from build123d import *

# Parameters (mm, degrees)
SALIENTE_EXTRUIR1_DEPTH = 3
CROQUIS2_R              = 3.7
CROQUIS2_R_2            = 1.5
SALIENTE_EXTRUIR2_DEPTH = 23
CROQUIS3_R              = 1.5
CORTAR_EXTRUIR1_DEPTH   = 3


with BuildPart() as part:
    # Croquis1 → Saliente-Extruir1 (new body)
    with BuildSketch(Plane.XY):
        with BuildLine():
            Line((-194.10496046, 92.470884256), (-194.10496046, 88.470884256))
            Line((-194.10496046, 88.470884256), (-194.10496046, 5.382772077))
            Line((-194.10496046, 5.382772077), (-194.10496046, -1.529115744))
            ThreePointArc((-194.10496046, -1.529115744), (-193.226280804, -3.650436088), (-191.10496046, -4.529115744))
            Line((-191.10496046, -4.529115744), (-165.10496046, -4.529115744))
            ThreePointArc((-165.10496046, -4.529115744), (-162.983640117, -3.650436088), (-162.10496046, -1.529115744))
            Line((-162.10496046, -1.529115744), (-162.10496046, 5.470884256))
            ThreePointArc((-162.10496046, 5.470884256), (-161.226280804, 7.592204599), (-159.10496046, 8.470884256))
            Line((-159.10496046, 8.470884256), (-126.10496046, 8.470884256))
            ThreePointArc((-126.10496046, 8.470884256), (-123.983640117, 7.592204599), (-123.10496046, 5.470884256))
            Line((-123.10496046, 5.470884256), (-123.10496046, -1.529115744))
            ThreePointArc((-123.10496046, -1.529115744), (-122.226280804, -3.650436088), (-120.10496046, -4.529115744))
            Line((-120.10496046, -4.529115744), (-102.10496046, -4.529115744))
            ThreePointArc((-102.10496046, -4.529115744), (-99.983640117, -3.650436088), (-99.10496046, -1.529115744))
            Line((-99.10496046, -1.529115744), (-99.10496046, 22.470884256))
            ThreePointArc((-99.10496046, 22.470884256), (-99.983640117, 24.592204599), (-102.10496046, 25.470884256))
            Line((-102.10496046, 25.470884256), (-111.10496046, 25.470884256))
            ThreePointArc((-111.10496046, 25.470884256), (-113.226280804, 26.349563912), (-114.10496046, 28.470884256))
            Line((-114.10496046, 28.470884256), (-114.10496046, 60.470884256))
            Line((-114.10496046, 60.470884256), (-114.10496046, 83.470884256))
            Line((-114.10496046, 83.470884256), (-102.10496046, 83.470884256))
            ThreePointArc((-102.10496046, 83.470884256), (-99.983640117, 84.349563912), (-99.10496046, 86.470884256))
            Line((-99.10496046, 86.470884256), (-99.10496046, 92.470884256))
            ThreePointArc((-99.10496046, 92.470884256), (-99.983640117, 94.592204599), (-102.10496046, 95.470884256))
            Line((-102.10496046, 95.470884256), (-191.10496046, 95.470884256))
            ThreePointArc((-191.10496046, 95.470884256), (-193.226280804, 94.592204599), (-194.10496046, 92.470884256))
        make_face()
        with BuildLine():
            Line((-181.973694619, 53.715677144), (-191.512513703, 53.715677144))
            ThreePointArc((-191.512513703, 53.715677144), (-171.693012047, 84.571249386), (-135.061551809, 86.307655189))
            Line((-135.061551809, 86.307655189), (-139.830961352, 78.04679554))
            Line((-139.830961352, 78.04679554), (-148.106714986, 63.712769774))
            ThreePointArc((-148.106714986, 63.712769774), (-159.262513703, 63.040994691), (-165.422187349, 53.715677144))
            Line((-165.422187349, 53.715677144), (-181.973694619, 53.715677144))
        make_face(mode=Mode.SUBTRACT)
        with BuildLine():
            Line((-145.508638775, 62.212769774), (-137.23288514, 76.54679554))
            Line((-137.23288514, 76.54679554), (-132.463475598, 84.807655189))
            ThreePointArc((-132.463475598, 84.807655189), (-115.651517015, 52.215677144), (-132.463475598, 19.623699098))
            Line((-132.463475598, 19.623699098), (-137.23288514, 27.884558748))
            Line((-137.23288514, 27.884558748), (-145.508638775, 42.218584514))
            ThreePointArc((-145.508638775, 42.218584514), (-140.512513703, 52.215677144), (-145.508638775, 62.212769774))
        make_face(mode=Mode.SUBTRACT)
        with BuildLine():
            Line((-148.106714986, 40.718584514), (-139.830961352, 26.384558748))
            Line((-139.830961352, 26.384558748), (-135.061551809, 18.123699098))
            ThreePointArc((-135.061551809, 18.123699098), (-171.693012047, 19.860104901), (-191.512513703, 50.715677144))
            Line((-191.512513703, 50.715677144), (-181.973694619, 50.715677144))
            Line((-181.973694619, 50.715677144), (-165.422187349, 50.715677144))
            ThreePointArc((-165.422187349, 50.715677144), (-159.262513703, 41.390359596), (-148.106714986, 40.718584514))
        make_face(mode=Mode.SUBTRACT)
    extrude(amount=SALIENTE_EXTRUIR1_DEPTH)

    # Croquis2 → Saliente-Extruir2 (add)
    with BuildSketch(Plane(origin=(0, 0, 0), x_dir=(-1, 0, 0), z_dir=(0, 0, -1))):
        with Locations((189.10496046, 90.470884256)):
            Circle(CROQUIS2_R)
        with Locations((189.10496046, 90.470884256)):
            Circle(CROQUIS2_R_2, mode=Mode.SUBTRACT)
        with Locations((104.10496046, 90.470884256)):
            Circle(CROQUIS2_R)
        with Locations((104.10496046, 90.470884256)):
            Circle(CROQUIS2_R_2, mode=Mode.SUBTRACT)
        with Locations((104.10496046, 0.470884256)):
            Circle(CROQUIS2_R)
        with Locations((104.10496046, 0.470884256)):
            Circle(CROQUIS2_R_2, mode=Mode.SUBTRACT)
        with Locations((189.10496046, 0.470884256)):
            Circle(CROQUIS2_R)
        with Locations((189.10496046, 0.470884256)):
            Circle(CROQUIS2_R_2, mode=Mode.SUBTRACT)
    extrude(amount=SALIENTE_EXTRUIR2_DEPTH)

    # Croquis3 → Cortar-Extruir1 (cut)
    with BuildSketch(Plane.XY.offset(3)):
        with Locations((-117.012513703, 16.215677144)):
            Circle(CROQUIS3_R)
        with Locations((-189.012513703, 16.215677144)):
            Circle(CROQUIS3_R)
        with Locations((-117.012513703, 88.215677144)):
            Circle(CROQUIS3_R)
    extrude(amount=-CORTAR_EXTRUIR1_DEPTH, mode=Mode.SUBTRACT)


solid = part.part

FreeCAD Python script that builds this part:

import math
import FreeCAD as App
import Part
import Sketcher

V = App.Vector
Q = App.Units.Quantity

doc = App.newDocument("Part")
body = doc.addObject("PartDesign::Body", "Body")

sketch1 = doc.addObject("Sketcher::SketchObject", "Sketch")
body.addObject(sketch1)
sketch1.AttachmentSupport = (doc.XY_Plane, [""])
sketch1.MapMode = "FlatFace"
sketch1.addGeometry(Part.LineSegment(V(-194.1, 92.5, 0), V(-194.1, -1.5, 0)), False)
sketch1.addGeometry(Part.ArcOfCircle(Part.Circle(V(-191.1, -1.5, 0), V(0, 0, 1), 3), math.radians(180), math.radians(270)), False)
sketch1.addGeometry(Part.LineSegment(V(-191.1, -4.5, 0), V(-165.1, -4.5, 0)), False)
sketch1.addGeometry(Part.ArcOfCircle(Part.Circle(V(-165.1, -1.5, 0), V(0, 0, 1), 3), math.radians(-90), math.radians(0)), False)
sketch1.addGeometry(Part.LineSegment(V(-162.1, -1.5, 0), V(-162.1, 5.5, 0)), False)
sketch1.addGeometry(Part.ArcOfCircle(Part.Circle(V(-159.1, 5.5, 0), V(0, 0, 1), 3), math.radians(90), math.radians(180)), False)
sketch1.addGeometry(Part.LineSegment(V(-159.1, 8.5, 0), V(-126.1, 8.5, 0)), False)
sketch1.addGeometry(Part.ArcOfCircle(Part.Circle(V(-126.1, 5.5, 0), V(0, 0, 1), 3), math.radians(0), math.radians(90)), False)
sketch1.addGeometry(Part.LineSegment(V(-123.1, 5.5, 0), V(-123.1, -1.5, 0)), False)
sketch1.addGeometry(Part.ArcOfCircle(Part.Circle(V(-120.1, -1.5, 0), V(0, 0, 1), 3), math.radians(180), math.radians(270)), False)
sketch1.addGeometry(Part.LineSegment(V(-120.1, -4.5, 0), V(-102.1, -4.5, 0)), False)
sketch1.addGeometry(Part.ArcOfCircle(Part.Circle(V(-102.1, -1.5, 0), V(0, 0, 1), 3), math.radians(-90), math.radians(0)), False)
sketch1.addGeometry(Part.LineSegment(V(-99.1, -1.5, 0), V(-99.1, 22.5, 0)), False)
sketch1.addGeometry(Part.ArcOfCircle(Part.Circle(V(-102.1, 22.5, 0), V(0, 0, 1), 3), math.radians(0), math.radians(90)), False)
sketch1.addGeometry(Part.LineSegment(V(-102.1, 25.5, 0), V(-111.1, 25.5, 0)), False)
sketch1.addGeometry(Part.ArcOfCircle(Part.Circle(V(-111.1, 28.5, 0), V(0, 0, 1), 3), math.radians(180), math.radians(270)), False)
sketch1.addGeometry(Part.LineSegment(V(-114.1, 28.5, 0), V(-114.1, 83.5, 0)), False)
sketch1.addGeometry(Part.LineSegment(V(-114.1, 83.5, 0), V(-102.1, 83.5, 0)), False)
sketch1.addGeometry(Part.ArcOfCircle(Part.Circle(V(-102.1, 86.5, 0), V(0, 0, 1), 3), math.radians(-90), math.radians(0)), False)
sketch1.addGeometry(Part.LineSegment(V(-99.1, 86.5, 0), V(-99.1, 92.5, 0)), False)
sketch1.addGeometry(Part.ArcOfCircle(Part.Circle(V(-102.1, 92.5, 0), V(0, 0, 1), 3), math.radians(0), math.radians(90)), False)
sketch1.addGeometry(Part.LineSegment(V(-102.1, 95.5, 0), V(-191.1, 95.5, 0)), False)
sketch1.addGeometry(Part.ArcOfCircle(Part.Circle(V(-191.1, 92.5, 0), V(0, 0, 1), 3), math.radians(90), math.radians(180)), False)
sketch1.addGeometry(Part.ArcOfCircle(Part.Circle(V(-153, 52.2, 0), V(0, 0, 1), 12.5), math.radians(-173), math.radians(-67)), False)
sketch1.addGeometry(Part.LineSegment(V(-148.1, 40.7, 0), V(-139.8, 26.4, 0)), False)
sketch1.addGeometry(Part.LineSegment(V(-139.8, 26.4, 0), V(-135.1, 18.1, 0)), False)
sketch1.addGeometry(Part.ArcOfCircle(Part.Circle(V(-151.7, 54.5, 0), V(0, 0, 1), 40), math.radians(-175), math.radians(-65)), False)
sketch1.addGeometry(Part.LineSegment(V(-191.5, 50.7, 0), V(-165.4, 50.7, 0)), False)
sketch1.addGeometry(Part.LineSegment(V(-165.4, 53.7, 0), V(-191.5, 53.7, 0)), False)
sketch1.addGeometry(Part.ArcOfCircle(Part.Circle(V(-151.7, 49.9, 0), V(0, 0, 1), 40), math.radians(65), math.radians(175)), False)
sketch1.addGeometry(Part.LineSegment(V(-135.1, 86.3, 0), V(-139.8, 78, 0)), False)
sketch1.addGeometry(Part.LineSegment(V(-139.8, 78, 0), V(-148.1, 63.7, 0)), False)
sketch1.addGeometry(Part.ArcOfCircle(Part.Circle(V(-153, 52.2, 0), V(0, 0, 1), 12.5), math.radians(67), math.radians(173)), False)
sketch1.addGeometry(Part.ArcOfCircle(Part.Circle(V(-153, 52.2, 0), V(0, 0, 1), 12.5), math.radians(-53), math.radians(53)), False)
sketch1.addGeometry(Part.LineSegment(V(-145.5, 62.2, 0), V(-137.2, 76.5, 0)), False)
sketch1.addGeometry(Part.LineSegment(V(-137.2, 76.5, 0), V(-132.5, 84.8, 0)), False)
sketch1.addGeometry(Part.ArcOfCircle(Part.Circle(V(-155.6, 52.2, 0), V(0, 0, 1), 40), math.radians(-55), math.radians(55)), False)
sketch1.addGeometry(Part.LineSegment(V(-132.5, 19.6, 0), V(-137.2, 27.9, 0)), False)
sketch1.addGeometry(Part.LineSegment(V(-137.2, 27.9, 0), V(-145.5, 42.2, 0)), False)
sketch1.addConstraint(Sketcher.Constraint("Tangent", 0, 2, 1, 1))
sketch1.addConstraint(Sketcher.Constraint("Tangent", 1, 2, 2, 1))
sketch1.addConstraint(Sketcher.Constraint("Tangent", 2, 2, 3, 1))
sketch1.addConstraint(Sketcher.Constraint("Tangent", 3, 2, 4, 1))
sketch1.addConstraint(Sketcher.Constraint("Tangent", 4, 2, 5, 2))
sketch1.addConstraint(Sketcher.Constraint("Tangent", 5, 1, 6, 1))
sketch1.addConstraint(Sketcher.Constraint("Tangent", 6, 2, 7, 2))
sketch1.addConstraint(Sketcher.Constraint("Tangent", 7, 1, 8, 1))
sketch1.addConstraint(Sketcher.Constraint("Tangent", 8, 2, 9, 1))
sketch1.addConstraint(Sketcher.Constraint("Tangent", 9, 2, 10, 1))
sketch1.addConstraint(Sketcher.Constraint("Tangent", 10, 2, 11, 1))
sketch1.addConstraint(Sketcher.Constraint("Tangent", 11, 2, 12, 1))
sketch1.addConstraint(Sketcher.Constraint("Tangent", 12, 2, 13, 1))
sketch1.addConstraint(Sketcher.Constraint("Tangent", 13, 2, 14, 1))
sketch1.addConstraint(Sketcher.Constraint("Tangent", 14, 2, 15, 2))
sketch1.addConstraint(Sketcher.Constraint("Tangent", 15, 1, 16, 1))
sketch1.addConstraint(Sketcher.Constraint("Coincident", 16, 2, 17, 1))
sketch1.addConstraint(Sketcher.Constraint("Tangent", 17, 2, 18, 1))
sketch1.addConstraint(Sketcher.Constraint("Tangent", 18, 2, 19, 1))
sketch1.addConstraint(Sketcher.Constraint("Tangent", 19, 2, 20, 1))
sketch1.addConstraint(Sketcher.Constraint("Tangent", 20, 2, 21, 1))
sketch1.addConstraint(Sketcher.Constraint("Tangent", 21, 2, 22, 1))
sketch1.addConstraint(Sketcher.Constraint("Tangent", 22, 2, 0, 1))
sketch1.addConstraint(Sketcher.Constraint("Coincident", 23, 2, 24, 1))
sketch1.addConstraint(Sketcher.Constraint("Coincident", 24, 2, 25, 1))
sketch1.addConstraint(Sketcher.Constraint("Coincident", 25, 2, 26, 2))
sketch1.addConstraint(Sketcher.Constraint("Coincident", 26, 1, 27, 1))
sketch1.addConstraint(Sketcher.Constraint("Coincident", 27, 2, 23, 1))
sketch1.addConstraint(Sketcher.Constraint("Coincident", 28, 2, 29, 2))
sketch1.addConstraint(Sketcher.Constraint("Coincident", 29, 1, 30, 1))
sketch1.addConstraint(Sketcher.Constraint("Coincident", 30, 2, 31, 1))
sketch1.addConstraint(Sketcher.Constraint("Coincident", 31, 2, 32, 1))
sketch1.addConstraint(Sketcher.Constraint("Coincident", 32, 2, 28, 1))
sketch1.addConstraint(Sketcher.Constraint("Coincident", 33, 2, 34, 1))
sketch1.addConstraint(Sketcher.Constraint("Coincident", 34, 2, 35, 1))
sketch1.addConstraint(Sketcher.Constraint("Coincident", 35, 2, 36, 2))
sketch1.addConstraint(Sketcher.Constraint("Coincident", 36, 1, 37, 1))
sketch1.addConstraint(Sketcher.Constraint("Coincident", 37, 2, 38, 1))
sketch1.addConstraint(Sketcher.Constraint("Coincident", 38, 2, 33, 1))
sketch1.addConstraint(Sketcher.Constraint("Vertical", 0))
sketch1.addConstraint(Sketcher.Constraint("Horizontal", 2))
sketch1.addConstraint(Sketcher.Constraint("Vertical", 4))
sketch1.addConstraint(Sketcher.Constraint("Horizontal", 6))
sketch1.addConstraint(Sketcher.Constraint("Vertical", 8))
sketch1.addConstraint(Sketcher.Constraint("Horizontal", 10))
sketch1.addConstraint(Sketcher.Constraint("Vertical", 12))
sketch1.addConstraint(Sketcher.Constraint("Horizontal", 14))
sketch1.addConstraint(Sketcher.Constraint("Vertical", 16))
sketch1.addConstraint(Sketcher.Constraint("Horizontal", 17))
sketch1.addConstraint(Sketcher.Constraint("Vertical", 19))
sketch1.addConstraint(Sketcher.Constraint("Horizontal", 21))
sketch1.addConstraint(Sketcher.Constraint("Horizontal", 27))
sketch1.addConstraint(Sketcher.Constraint("Horizontal", 28))
sketch1.addConstraint(Sketcher.Constraint("Coincident", 32, 3, 23, 3))
sketch1.addConstraint(Sketcher.Constraint("Coincident", 33, 3, 23, 3))
sketch1.addConstraint(Sketcher.Constraint("Equal", 1, 3))
sketch1.addConstraint(Sketcher.Constraint("Equal", 3, 5))
sketch1.addConstraint(Sketcher.Constraint("Equal", 5, 7))
sketch1.addConstraint(Sketcher.Constraint("Equal", 7, 9))
sketch1.addConstraint(Sketcher.Constraint("Equal", 9, 11))
sketch1.addConstraint(Sketcher.Constraint("Equal", 11, 13))
sketch1.addConstraint(Sketcher.Constraint("Equal", 13, 15))
sketch1.addConstraint(Sketcher.Constraint("Equal", 15, 18))
sketch1.addConstraint(Sketcher.Constraint("Equal", 18, 20))
sketch1.addConstraint(Sketcher.Constraint("Equal", 20, 22))
sketch1.addConstraint(Sketcher.Constraint("Equal", 26, 29))
sketch1.addConstraint(Sketcher.Constraint("Equal", 23, 32))
sketch1.addConstraint(Sketcher.Constraint("Equal", 32, 33))
sketch1.addConstraint(Sketcher.Constraint("Equal", 29, 36))
sketch1.addConstraint(Sketcher.Constraint("Parallel", 24, 25))
sketch1.addConstraint(Sketcher.Constraint("Parallel", 30, 31))
sketch1.addConstraint(Sketcher.Constraint("Parallel", 31, 34))
sketch1.addConstraint(Sketcher.Constraint("Parallel", 34, 35))
sketch1.addConstraint(Sketcher.Constraint("Parallel", 25, 37))
sketch1.addConstraint(Sketcher.Constraint("Parallel", 37, 38))
sketch1.addConstraint(Sketcher.Constraint("Horizontal", 3, 3, 9, 3))
sketch1.addConstraint(Sketcher.Constraint("Horizontal", 33, 3, 36, 3))
sketch1.addConstraint(Sketcher.Constraint("Vertical", 13, 3, 18, 3))
sketch1.addConstraint(Sketcher.Constraint("Vertical", 26, 3, 29, 3))
sketch1.addConstraint(Sketcher.Constraint("Vertical", 26, 1, 28, 2))
sketch1.addConstraint(Sketcher.Constraint("Vertical", 25, 2, 29, 1))
sketch1.addConstraint(Sketcher.Constraint("Vertical", 24, 2, 30, 2))
sketch1.addConstraint(Sketcher.Constraint("Vertical", 23, 2, 31, 2))
sketch1.addConstraint(Sketcher.Constraint("Vertical", 27, 2, 32, 2))
sketch1.addConstraint(Sketcher.Constraint("Vertical", 35, 2, 36, 1))
sketch1.addConstraint(Sketcher.Constraint("Vertical", 34, 2, 37, 2))
sketch1.addConstraint(Sketcher.Constraint("Equal", 31, 34))
sketch1.addConstraint(Sketcher.Constraint("Equal", 30, 35))
sketch1.addConstraint(Sketcher.Constraint("Radius", 1, 3.0))
sketch1.addConstraint(Sketcher.Constraint("Radius", 23, 12.5))
sketch1.addConstraint(Sketcher.Constraint("DistanceX", 2, 1, 2, 2, 26.0))
sketch1.addConstraint(Sketcher.Constraint("DistanceX", 6, 1, 6, 2, 33.0))
sketch1.addConstraint(Sketcher.Constraint("DistanceX", 10, 1, 10, 2, 18.0))
sketch1.addConstraint(Sketcher.Constraint("DistanceX", 14, 2, 14, 1, 9.0))
sketch1.addConstraint(Sketcher.Constraint("DistanceY", 0, 2, 0, 1, 94.0))
sketch1.addConstraint(Sketcher.Constraint("DistanceY", 4, 1, 4, 2, 7.0))
sketch1.addConstraint(Sketcher.Constraint("DistanceY", 12, 1, 12, 2, 24.0))
sketch1.addConstraint(Sketcher.Constraint("DistanceY", 16, 1, 16, 2, 55.0))
sketch1.addConstraint(Sketcher.Constraint("Angle", 24, Q("-60 deg")))
sketch1.addConstraint(Sketcher.Constraint("DistanceY", 26, 1, 28, 2, 3.0))
sketch1.addConstraint(Sketcher.Constraint("DistanceX", 26, 1, 23, 3, 38.5))
sketch1.addConstraint(Sketcher.Constraint("DistanceY", 33, 2, 31, 2, 1.5))
sketch1.addConstraint(Sketcher.Constraint("Radius", 26, 39.997689))
sketch1.addConstraint(Sketcher.Constraint("DistanceX", 24, 2, 6, 2, 13.726001))
sketch1.addConstraint(Sketcher.Constraint("DistanceY", -1, 1, 25, 2, 18.123699))
sketch1.addConstraint(Sketcher.Constraint("DistanceX", 23, 3, 23, 2, 4.905799))
sketch1.addConstraint(Sketcher.Constraint("Distance", 25, 9.538819))
sketch1.addConstraint(Sketcher.Constraint("DistanceX", 1, 3, -1, 1, 191.10496))
sketch1.addConstraint(Sketcher.Constraint("DistanceY", -1, 1, 26, 3, 54.49912))
sketch1.addConstraint(Sketcher.Constraint("DistanceY", 5, 3, 29, 3, 44.46135))
pad1 = doc.addObject("PartDesign::Pad", "Pad")
body.addObject(pad1)
pad1.Profile = sketch1
pad1.Length = 3

sketch2 = doc.addObject("Sketcher::SketchObject", "Sketch001")
body.addObject(sketch2)
sketch2.AttachmentSupport = (doc.XY_Plane, [""])
sketch2.MapMode = "FlatFace"
sketch2.addGeometry(Part.Circle(V(-189.1, 90.5, 0), V(0, 0, 1), 3.7), False)
sketch2.addGeometry(Part.Circle(V(-189.1, 90.5, 0), V(0, 0, 1), 1.5), False)
sketch2.addGeometry(Part.Circle(V(-104.1, 90.5, 0), V(0, 0, 1), 3.7), False)
sketch2.addGeometry(Part.Circle(V(-104.1, 90.5, 0), V(0, 0, 1), 1.5), False)
sketch2.addGeometry(Part.Circle(V(-104.1, 0.5, 0), V(0, 0, 1), 3.7), False)
sketch2.addGeometry(Part.Circle(V(-104.1, 0.5, 0), V(0, 0, 1), 1.5), False)
sketch2.addGeometry(Part.Circle(V(-189.1, 0.5, 0), V(0, 0, 1), 3.7), False)
sketch2.addGeometry(Part.Circle(V(-189.1, 0.5, 0), V(0, 0, 1), 1.5), False)
sketch2.addConstraint(Sketcher.Constraint("Coincident", 1, 3, 0, 3))
sketch2.addConstraint(Sketcher.Constraint("Coincident", 3, 3, 2, 3))
sketch2.addConstraint(Sketcher.Constraint("Coincident", 5, 3, 4, 3))
sketch2.addConstraint(Sketcher.Constraint("Coincident", 7, 3, 6, 3))
sketch2.addConstraint(Sketcher.Constraint("Equal", 0, 2))
sketch2.addConstraint(Sketcher.Constraint("Equal", 1, 3))
sketch2.addConstraint(Sketcher.Constraint("Equal", 2, 4))
sketch2.addConstraint(Sketcher.Constraint("Equal", 3, 5))
sketch2.addConstraint(Sketcher.Constraint("Equal", 4, 6))
sketch2.addConstraint(Sketcher.Constraint("Equal", 5, 7))
sketch2.addConstraint(Sketcher.Constraint("Horizontal", 1, 3, 2, 3))
sketch2.addConstraint(Sketcher.Constraint("Horizontal", 5, 3, 6, 3))
sketch2.addConstraint(Sketcher.Constraint("Vertical", 3, 3, 4, 3))
sketch2.addConstraint(Sketcher.Constraint("Vertical", 1, 3, 6, 3))
sketch2.addConstraint(Sketcher.Constraint("Diameter", 1, 3.0))
sketch2.addConstraint(Sketcher.Constraint("Diameter", 0, 7.4))
sketch2.addConstraint(Sketcher.Constraint("DistanceX", 0, 3, 2, 3, 85.0))
sketch2.addConstraint(Sketcher.Constraint("DistanceY", 4, 3, 2, 3, 90.0))
sketch2.addConstraint(Sketcher.Constraint("DistanceX", 0, 3, -1, 1, 189.10496))
sketch2.addConstraint(Sketcher.Constraint("DistanceY", -1, 1, 0, 3, 90.470884))
pad2 = doc.addObject("PartDesign::Pad", "Pad001")
body.addObject(pad2)
pad2.Profile = sketch2
pad2.Length = 23
pad2.Reversed = True

sketch3 = doc.addObject("Sketcher::SketchObject", "Sketch002")
body.addObject(sketch3)
sketch3.AttachmentSupport = (doc.XY_Plane, [""])
sketch3.MapMode = "FlatFace"
sketch3.AttachmentOffset = App.Placement(V(0, 0, 3), App.Rotation())
sketch3.addGeometry(Part.Circle(V(-117, 16.2, 0), V(0, 0, 1), 1.5), False)
sketch3.addGeometry(Part.Circle(V(-189, 16.2, 0), V(0, 0, 1), 1.5), False)
sketch3.addGeometry(Part.Circle(V(-117, 88.2, 0), V(0, 0, 1), 1.5), False)
sketch3.addConstraint(Sketcher.Constraint("Equal", 0, 1))
sketch3.addConstraint(Sketcher.Constraint("Equal", 1, 2))
sketch3.addConstraint(Sketcher.Constraint("Horizontal", 0, 3, 1, 3))
sketch3.addConstraint(Sketcher.Constraint("Vertical", 0, 3, 2, 3))
sketch3.addConstraint(Sketcher.Constraint("Diameter", 0, 3.0))
sketch3.addConstraint(Sketcher.Constraint("DistanceX", 1, 3, 0, 3, 72.0))
sketch3.addConstraint(Sketcher.Constraint("DistanceY", 0, 3, 2, 3, 72.0))
sketch3.addConstraint(Sketcher.Constraint("DistanceX", 0, 3, -1, 1, 117.012514))
sketch3.addConstraint(Sketcher.Constraint("DistanceY", -1, 1, 0, 3, 16.215677))
pocket1 = doc.addObject("PartDesign::Pocket", "Pocket")
body.addObject(pocket1)
pocket1.Profile = sketch3
pocket1.Length = 3

doc.recompute()
